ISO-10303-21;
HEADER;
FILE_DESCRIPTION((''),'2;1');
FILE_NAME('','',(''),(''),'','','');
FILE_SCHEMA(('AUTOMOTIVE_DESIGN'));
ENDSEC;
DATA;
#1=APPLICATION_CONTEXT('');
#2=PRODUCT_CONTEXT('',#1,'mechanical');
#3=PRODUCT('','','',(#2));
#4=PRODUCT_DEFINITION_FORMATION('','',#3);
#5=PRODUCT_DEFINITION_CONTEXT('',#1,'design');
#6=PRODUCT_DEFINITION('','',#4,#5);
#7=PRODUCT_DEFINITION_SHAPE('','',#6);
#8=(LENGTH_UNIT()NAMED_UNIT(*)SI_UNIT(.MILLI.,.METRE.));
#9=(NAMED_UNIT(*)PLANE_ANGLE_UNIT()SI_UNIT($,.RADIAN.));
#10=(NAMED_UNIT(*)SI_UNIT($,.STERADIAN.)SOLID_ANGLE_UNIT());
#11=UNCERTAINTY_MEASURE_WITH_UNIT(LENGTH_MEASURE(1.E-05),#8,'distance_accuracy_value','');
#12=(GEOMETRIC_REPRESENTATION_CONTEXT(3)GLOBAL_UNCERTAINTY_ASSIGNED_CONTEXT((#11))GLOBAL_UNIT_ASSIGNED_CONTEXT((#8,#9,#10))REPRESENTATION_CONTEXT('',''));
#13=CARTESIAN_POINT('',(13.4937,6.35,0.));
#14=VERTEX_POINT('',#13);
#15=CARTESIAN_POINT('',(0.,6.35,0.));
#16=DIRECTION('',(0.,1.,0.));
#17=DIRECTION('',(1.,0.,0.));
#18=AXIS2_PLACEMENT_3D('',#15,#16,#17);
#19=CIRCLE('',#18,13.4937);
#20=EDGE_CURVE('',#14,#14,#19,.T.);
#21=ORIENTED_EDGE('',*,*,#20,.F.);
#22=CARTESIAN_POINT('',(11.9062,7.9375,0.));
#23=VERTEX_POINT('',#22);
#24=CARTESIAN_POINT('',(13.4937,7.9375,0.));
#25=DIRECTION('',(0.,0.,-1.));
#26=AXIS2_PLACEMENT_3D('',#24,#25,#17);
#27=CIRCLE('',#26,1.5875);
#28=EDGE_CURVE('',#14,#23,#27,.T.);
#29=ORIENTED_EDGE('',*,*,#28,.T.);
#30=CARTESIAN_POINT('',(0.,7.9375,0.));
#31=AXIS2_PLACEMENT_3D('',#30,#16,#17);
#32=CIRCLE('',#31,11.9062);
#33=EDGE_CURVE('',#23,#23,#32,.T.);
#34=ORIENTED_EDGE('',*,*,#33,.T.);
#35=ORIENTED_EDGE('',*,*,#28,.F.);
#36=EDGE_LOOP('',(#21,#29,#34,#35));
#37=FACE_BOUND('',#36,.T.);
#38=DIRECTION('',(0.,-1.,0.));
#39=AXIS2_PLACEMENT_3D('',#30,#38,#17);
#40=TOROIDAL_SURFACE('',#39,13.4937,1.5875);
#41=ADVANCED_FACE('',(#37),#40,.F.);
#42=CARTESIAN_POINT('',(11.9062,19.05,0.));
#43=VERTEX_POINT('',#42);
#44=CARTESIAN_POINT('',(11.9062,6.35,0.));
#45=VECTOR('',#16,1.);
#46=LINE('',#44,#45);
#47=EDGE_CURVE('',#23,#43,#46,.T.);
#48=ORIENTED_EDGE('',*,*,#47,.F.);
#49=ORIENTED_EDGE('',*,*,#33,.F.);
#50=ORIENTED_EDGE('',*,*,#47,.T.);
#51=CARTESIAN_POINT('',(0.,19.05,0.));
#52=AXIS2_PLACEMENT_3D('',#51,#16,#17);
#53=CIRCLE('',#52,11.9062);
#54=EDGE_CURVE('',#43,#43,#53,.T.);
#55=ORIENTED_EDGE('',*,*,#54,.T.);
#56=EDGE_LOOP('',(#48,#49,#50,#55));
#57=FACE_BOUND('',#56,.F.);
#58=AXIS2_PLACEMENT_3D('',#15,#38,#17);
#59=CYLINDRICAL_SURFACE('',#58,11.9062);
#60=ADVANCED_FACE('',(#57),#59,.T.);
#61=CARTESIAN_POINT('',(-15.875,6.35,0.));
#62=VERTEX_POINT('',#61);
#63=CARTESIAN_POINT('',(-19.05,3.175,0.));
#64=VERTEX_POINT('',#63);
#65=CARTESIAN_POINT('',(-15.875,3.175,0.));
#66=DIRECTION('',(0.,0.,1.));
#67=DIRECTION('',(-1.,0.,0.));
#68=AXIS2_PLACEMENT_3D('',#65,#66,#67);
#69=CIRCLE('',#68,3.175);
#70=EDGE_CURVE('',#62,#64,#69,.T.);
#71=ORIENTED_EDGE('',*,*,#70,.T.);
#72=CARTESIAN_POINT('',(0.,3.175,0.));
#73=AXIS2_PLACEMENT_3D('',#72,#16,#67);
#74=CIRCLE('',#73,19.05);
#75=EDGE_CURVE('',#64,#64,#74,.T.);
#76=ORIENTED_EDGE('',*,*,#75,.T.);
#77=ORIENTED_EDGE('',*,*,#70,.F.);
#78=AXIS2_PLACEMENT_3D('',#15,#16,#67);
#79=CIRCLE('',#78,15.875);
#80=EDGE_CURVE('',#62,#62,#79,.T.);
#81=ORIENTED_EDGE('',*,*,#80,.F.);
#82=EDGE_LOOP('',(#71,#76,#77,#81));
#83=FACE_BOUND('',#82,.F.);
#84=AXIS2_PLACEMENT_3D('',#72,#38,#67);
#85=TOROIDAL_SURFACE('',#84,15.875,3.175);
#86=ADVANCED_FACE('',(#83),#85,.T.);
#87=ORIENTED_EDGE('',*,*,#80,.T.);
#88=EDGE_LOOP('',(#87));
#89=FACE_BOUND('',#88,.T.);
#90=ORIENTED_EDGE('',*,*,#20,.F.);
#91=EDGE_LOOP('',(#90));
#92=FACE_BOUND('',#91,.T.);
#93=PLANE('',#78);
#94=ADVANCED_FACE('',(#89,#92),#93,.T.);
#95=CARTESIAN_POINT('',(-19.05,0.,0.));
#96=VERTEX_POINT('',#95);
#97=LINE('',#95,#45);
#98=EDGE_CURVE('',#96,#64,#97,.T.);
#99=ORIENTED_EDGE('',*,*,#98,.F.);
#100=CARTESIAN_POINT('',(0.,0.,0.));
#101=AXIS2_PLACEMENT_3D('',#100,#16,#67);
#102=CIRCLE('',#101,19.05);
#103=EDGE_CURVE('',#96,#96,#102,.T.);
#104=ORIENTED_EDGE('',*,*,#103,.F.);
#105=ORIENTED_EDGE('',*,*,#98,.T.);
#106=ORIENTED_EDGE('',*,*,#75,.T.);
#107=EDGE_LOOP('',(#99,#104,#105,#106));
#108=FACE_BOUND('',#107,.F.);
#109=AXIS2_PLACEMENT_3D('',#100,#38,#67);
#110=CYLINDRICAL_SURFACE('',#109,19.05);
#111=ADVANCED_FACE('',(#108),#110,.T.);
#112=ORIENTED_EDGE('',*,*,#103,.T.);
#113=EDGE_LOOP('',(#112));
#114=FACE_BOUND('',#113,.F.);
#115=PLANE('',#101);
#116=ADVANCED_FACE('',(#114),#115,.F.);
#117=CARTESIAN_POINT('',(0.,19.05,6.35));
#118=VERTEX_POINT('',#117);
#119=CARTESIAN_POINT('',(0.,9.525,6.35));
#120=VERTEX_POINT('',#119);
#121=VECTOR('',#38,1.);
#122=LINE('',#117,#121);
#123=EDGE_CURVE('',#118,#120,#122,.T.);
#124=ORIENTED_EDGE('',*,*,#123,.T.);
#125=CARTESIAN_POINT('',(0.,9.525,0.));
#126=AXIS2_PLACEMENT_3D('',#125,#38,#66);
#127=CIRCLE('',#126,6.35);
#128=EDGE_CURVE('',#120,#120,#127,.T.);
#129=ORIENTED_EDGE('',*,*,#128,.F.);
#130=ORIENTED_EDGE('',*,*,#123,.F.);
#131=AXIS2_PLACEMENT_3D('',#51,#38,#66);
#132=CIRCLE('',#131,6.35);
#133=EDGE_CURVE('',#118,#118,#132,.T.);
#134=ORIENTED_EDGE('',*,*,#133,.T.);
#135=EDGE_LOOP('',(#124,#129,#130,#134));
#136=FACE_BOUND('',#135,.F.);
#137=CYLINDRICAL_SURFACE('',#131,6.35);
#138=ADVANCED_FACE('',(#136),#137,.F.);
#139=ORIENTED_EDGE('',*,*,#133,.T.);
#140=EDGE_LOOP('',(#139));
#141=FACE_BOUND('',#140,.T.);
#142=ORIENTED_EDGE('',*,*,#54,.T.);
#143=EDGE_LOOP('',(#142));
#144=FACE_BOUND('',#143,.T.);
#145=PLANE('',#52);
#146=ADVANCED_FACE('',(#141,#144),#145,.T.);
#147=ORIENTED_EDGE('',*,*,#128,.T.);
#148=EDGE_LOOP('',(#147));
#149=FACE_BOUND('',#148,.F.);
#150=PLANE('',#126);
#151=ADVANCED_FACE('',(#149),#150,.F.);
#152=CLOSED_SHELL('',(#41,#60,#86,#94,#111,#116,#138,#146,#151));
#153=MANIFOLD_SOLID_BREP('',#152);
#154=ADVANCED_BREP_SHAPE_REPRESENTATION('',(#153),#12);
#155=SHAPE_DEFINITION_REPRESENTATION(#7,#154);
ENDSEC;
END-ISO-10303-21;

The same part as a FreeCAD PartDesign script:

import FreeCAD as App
import Part
import Sketcher

V = App.Vector
Q = App.Units.Quantity


def edges_at(feature, points):
    """Names of the edges that pass closest to the given points."""
    edges = feature.Shape.Edges
    near = lambda p: min(range(len(edges)), key=lambda i: edges[i].distToShape(Part.Vertex(*p))[0])
    return sorted({f"Edge{near(p) + 1}" for p in points})

doc = App.newDocument("Part")
body = doc.addObject("PartDesign::Body", "Body")

# Sketch on XZ plane
sketch1 = doc.addObject("Sketcher::SketchObject", "Sketch")
body.addObject(sketch1)
sketch1.AttachmentSupport = (doc.XZ_Plane, [""])
sketch1.MapMode = "FlatFace"
sketch1.addGeometry(Part.Circle(V(0, 0, 0), V(0, 0, 1), 19.05), False)
sketch1.addConstraint([
    Sketcher.Constraint("Coincident", 0, 3, -1, 1),
    Sketcher.Constraint("Diameter", 0, Q("1.5 in")),
])
pad1 = doc.addObject("PartDesign::Pad", "Pad")
body.addObject(pad1)
pad1.Profile = sketch1
pad1.Length = Q("0.25 in")
pad1.Reversed = True

# Sketch on XZ plane
sketch2 = doc.addObject("Sketcher::SketchObject", "Sketch001")
body.addObject(sketch2)
sketch2.AttachmentSupport = (doc.XZ_Plane, [""])
sketch2.MapMode = "FlatFace"
sketch2.AttachmentOffset = App.Placement(V(0, 0, -0.25 * 25.4), App.Rotation())
sketch2.addGeometry(Part.Circle(V(0, 0, 0), V(0, 0, 1), 11.9062), False)
sketch2.addConstraint([
    Sketcher.Constraint("Coincident", 0, 3, -1, 1),
    Sketcher.Constraint("Diameter", 0, Q("0.9375 in")),
])
pad2 = doc.addObject("PartDesign::Pad", "Pad001")
body.addObject(pad2)
pad2.Profile = sketch2
pad2.Length = Q("0.5 in")
pad2.Reversed = True

# Sketch on XZ plane
sketch3 = doc.addObject("Sketcher::SketchObject", "Sketch002")
body.addObject(sketch3)
sketch3.AttachmentSupport = (doc.XZ_Plane, [""])
sketch3.MapMode = "FlatFace"
sketch3.AttachmentOffset = App.Placement(V(0, 0, -0.75 * 25.4), App.Rotation())
sketch3.addGeometry(Part.Circle(V(0, 0, 0), V(0, 0, 1), 6.35), False)
sketch3.addConstraint([
    Sketcher.Constraint("Coincident", 0, 3, -1, 1),
    Sketcher.Constraint("Diameter", 0, Q("0.5 in")),
])
doc.recompute()
hole = doc.addObject("PartDesign::Hole", "Hole")
body.addObject(hole)
hole.Profile = sketch3
hole.ThreadType = "None"
hole.Diameter = Q("0.5 in")
hole.DepthType = "Dimension"
hole.Depth = Q("0.375 in")
hole.DrillPoint = "Flat"
hole.Reversed = True
doc.recompute()

fillet = doc.addObject("PartDesign::Fillet", "Fillet")
body.addObject(fillet)
fillet.Base = (hole, edges_at(hole, [(-11.906, 6.35, 0)]))
fillet.Radius = Q("0.0625 in")
doc.recompute()

fillet2 = doc.addObject("PartDesign::Fillet", "Fillet001")
body.addObject(fillet2)
fillet2.Base = (fillet, edges_at(fillet, [(19.05, 6.35, 0)]))
fillet2.Radius = Q("0.125 in")

doc.recompute()
